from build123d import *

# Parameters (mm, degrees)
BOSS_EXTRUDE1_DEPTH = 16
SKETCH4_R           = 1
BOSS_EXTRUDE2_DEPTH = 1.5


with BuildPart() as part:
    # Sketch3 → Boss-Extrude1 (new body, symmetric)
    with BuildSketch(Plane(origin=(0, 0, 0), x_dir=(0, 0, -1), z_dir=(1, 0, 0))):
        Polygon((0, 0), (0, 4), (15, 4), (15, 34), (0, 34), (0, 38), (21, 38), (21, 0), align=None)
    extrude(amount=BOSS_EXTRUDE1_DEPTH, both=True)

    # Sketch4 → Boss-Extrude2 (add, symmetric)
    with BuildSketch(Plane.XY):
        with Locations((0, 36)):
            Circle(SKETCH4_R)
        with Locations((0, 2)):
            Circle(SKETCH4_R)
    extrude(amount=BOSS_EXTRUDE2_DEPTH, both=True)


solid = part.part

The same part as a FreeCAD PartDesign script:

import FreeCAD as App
import Part
import Sketcher

V = App.Vector
Q = App.Units.Quantity

doc = App.newDocument("Part")
body = doc.addObject("PartDesign::Body", "Body")

# Sketch on YZ plane
sketch1 = body.newObject("Sketcher::SketchObject", "Sketch")
sketch1.AttachmentSupport = (doc.getObject("YZ_Plane"), [""])
sketch1.MapMode = "FlatFace"
sketch1.addGeometry(Part.LineSegment(V(4, 0, 0), V(0, 0, 0)), False)
sketch1.addGeometry(Part.LineSegment(V(0, 0, 0), V(0, -21, 0)), False)
sketch1.addGeometry(Part.LineSegment(V(0, -21, 0), V(38, -21, 0)), False)
sketch1.addGeometry(Part.LineSegment(V(38, -21, 0), V(38, 0, 0)), False)
sketch1.addGeometry(Part.LineSegment(V(38, 0, 0), V(34, 0, 0)), False)
sketch1.addGeometry(Part.LineSegment(V(34, 0, 0), V(34, -15, 0)), False)
sketch1.addGeometry(Part.LineSegment(V(34, -15, 0), V(4, -15, 0)), False)
sketch1.addGeometry(Part.LineSegment(V(4, -15, 0), V(4, 0, 0)), False)
sketch1.addConstraint(Sketcher.Constraint("Coincident", 0, 2, 1, 1))
sketch1.addConstraint(Sketcher.Constraint("Coincident", 1, 2, 2, 1))
sketch1.addConstraint(Sketcher.Constraint("Coincident", 2, 2, 3, 1))
sketch1.addConstraint(Sketcher.Constraint("Coincident", 3, 2, 4, 1))
sketch1.addConstraint(Sketcher.Constraint("Coincident", 4, 2, 5, 1))
sketch1.addConstraint(Sketcher.Constraint("Coincident", 5, 2, 6, 1))
sketch1.addConstraint(Sketcher.Constraint("Coincident", 6, 2, 7, 1))
sketch1.addConstraint(Sketcher.Constraint("Coincident", 7, 2, 0, 1))
sketch1.addConstraint(Sketcher.Constraint("Horizontal", 0))
sketch1.addConstraint(Sketcher.Constraint("Vertical", 1))
sketch1.addConstraint(Sketcher.Constraint("Horizontal", 2))
sketch1.addConstraint(Sketcher.Constraint("Vertical", 3))
sketch1.addConstraint(Sketcher.Constraint("Horizontal", 4))
sketch1.addConstraint(Sketcher.Constraint("Vertical", 5))
sketch1.addConstraint(Sketcher.Constraint("Horizontal", 6))
sketch1.addConstraint(Sketcher.Constraint("Vertical", 7))
sketch1.addConstraint(Sketcher.Constraint("Coincident", 0, 2, -1, 1))
sketch1.addConstraint(Sketcher.Constraint("PointOnObject", 3, 2, -1))
sketch1.addConstraint(Sketcher.Constraint("Equal", 0, 4))
sketch1.addConstraint(Sketcher.Constraint("DistanceX", 0, 2, 0, 1, Q("4 mm")))
sketch1.addConstraint(Sketcher.Constraint("DistanceX", 2, 1, 2, 2, Q("38 mm")))
sketch1.addConstraint(Sketcher.Constraint("DistanceY", 1, 2, 1, 1, Q("21 mm")))
sketch1.addConstraint(Sketcher.Constraint("DistanceY", 5, 2, 5, 1, Q("15 mm")))
pad1 = body.newObject("PartDesign::Pad", "Pad")
pad1.Profile = sketch1
pad1.Length = 32
pad1.Midplane = True

# Sketch on XY plane
sketch2 = body.newObject("Sketcher::SketchObject", "Sketch001")
sketch2.AttachmentSupport = (doc.getObject("XY_Plane"), [""])
sketch2.MapMode = "FlatFace"
sketch2.addGeometry(Part.Circle(V(0, 36, 0), V(0, 0, 1), 1), False)
sketch2.addGeometry(Part.Circle(V(0, 2, 0), V(0, 0, 1), 1), False)
sketch2.addConstraint(Sketcher.Constraint("Equal", 0, 1))
sketch2.addConstraint(Sketcher.Constraint("PointOnObject", 0, 3, -2))
sketch2.addConstraint(Sketcher.Constraint("PointOnObject", 1, 3, -2))
sketch2.addConstraint(Sketcher.Constraint("Diameter", 0, Q("2 mm")))
sketch2.addConstraint(Sketcher.Constraint("DistanceY", -1, 1, 0, 3, Q("36 mm")))
sketch2.addConstraint(Sketcher.Constraint("DistanceY", -1, 1, 1, 3, Q("2 mm")))
pad2 = body.newObject("PartDesign::Pad", "Pad001")
pad2.Profile = sketch2
pad2.Length = 3
pad2.Midplane = True

doc.recompute()
